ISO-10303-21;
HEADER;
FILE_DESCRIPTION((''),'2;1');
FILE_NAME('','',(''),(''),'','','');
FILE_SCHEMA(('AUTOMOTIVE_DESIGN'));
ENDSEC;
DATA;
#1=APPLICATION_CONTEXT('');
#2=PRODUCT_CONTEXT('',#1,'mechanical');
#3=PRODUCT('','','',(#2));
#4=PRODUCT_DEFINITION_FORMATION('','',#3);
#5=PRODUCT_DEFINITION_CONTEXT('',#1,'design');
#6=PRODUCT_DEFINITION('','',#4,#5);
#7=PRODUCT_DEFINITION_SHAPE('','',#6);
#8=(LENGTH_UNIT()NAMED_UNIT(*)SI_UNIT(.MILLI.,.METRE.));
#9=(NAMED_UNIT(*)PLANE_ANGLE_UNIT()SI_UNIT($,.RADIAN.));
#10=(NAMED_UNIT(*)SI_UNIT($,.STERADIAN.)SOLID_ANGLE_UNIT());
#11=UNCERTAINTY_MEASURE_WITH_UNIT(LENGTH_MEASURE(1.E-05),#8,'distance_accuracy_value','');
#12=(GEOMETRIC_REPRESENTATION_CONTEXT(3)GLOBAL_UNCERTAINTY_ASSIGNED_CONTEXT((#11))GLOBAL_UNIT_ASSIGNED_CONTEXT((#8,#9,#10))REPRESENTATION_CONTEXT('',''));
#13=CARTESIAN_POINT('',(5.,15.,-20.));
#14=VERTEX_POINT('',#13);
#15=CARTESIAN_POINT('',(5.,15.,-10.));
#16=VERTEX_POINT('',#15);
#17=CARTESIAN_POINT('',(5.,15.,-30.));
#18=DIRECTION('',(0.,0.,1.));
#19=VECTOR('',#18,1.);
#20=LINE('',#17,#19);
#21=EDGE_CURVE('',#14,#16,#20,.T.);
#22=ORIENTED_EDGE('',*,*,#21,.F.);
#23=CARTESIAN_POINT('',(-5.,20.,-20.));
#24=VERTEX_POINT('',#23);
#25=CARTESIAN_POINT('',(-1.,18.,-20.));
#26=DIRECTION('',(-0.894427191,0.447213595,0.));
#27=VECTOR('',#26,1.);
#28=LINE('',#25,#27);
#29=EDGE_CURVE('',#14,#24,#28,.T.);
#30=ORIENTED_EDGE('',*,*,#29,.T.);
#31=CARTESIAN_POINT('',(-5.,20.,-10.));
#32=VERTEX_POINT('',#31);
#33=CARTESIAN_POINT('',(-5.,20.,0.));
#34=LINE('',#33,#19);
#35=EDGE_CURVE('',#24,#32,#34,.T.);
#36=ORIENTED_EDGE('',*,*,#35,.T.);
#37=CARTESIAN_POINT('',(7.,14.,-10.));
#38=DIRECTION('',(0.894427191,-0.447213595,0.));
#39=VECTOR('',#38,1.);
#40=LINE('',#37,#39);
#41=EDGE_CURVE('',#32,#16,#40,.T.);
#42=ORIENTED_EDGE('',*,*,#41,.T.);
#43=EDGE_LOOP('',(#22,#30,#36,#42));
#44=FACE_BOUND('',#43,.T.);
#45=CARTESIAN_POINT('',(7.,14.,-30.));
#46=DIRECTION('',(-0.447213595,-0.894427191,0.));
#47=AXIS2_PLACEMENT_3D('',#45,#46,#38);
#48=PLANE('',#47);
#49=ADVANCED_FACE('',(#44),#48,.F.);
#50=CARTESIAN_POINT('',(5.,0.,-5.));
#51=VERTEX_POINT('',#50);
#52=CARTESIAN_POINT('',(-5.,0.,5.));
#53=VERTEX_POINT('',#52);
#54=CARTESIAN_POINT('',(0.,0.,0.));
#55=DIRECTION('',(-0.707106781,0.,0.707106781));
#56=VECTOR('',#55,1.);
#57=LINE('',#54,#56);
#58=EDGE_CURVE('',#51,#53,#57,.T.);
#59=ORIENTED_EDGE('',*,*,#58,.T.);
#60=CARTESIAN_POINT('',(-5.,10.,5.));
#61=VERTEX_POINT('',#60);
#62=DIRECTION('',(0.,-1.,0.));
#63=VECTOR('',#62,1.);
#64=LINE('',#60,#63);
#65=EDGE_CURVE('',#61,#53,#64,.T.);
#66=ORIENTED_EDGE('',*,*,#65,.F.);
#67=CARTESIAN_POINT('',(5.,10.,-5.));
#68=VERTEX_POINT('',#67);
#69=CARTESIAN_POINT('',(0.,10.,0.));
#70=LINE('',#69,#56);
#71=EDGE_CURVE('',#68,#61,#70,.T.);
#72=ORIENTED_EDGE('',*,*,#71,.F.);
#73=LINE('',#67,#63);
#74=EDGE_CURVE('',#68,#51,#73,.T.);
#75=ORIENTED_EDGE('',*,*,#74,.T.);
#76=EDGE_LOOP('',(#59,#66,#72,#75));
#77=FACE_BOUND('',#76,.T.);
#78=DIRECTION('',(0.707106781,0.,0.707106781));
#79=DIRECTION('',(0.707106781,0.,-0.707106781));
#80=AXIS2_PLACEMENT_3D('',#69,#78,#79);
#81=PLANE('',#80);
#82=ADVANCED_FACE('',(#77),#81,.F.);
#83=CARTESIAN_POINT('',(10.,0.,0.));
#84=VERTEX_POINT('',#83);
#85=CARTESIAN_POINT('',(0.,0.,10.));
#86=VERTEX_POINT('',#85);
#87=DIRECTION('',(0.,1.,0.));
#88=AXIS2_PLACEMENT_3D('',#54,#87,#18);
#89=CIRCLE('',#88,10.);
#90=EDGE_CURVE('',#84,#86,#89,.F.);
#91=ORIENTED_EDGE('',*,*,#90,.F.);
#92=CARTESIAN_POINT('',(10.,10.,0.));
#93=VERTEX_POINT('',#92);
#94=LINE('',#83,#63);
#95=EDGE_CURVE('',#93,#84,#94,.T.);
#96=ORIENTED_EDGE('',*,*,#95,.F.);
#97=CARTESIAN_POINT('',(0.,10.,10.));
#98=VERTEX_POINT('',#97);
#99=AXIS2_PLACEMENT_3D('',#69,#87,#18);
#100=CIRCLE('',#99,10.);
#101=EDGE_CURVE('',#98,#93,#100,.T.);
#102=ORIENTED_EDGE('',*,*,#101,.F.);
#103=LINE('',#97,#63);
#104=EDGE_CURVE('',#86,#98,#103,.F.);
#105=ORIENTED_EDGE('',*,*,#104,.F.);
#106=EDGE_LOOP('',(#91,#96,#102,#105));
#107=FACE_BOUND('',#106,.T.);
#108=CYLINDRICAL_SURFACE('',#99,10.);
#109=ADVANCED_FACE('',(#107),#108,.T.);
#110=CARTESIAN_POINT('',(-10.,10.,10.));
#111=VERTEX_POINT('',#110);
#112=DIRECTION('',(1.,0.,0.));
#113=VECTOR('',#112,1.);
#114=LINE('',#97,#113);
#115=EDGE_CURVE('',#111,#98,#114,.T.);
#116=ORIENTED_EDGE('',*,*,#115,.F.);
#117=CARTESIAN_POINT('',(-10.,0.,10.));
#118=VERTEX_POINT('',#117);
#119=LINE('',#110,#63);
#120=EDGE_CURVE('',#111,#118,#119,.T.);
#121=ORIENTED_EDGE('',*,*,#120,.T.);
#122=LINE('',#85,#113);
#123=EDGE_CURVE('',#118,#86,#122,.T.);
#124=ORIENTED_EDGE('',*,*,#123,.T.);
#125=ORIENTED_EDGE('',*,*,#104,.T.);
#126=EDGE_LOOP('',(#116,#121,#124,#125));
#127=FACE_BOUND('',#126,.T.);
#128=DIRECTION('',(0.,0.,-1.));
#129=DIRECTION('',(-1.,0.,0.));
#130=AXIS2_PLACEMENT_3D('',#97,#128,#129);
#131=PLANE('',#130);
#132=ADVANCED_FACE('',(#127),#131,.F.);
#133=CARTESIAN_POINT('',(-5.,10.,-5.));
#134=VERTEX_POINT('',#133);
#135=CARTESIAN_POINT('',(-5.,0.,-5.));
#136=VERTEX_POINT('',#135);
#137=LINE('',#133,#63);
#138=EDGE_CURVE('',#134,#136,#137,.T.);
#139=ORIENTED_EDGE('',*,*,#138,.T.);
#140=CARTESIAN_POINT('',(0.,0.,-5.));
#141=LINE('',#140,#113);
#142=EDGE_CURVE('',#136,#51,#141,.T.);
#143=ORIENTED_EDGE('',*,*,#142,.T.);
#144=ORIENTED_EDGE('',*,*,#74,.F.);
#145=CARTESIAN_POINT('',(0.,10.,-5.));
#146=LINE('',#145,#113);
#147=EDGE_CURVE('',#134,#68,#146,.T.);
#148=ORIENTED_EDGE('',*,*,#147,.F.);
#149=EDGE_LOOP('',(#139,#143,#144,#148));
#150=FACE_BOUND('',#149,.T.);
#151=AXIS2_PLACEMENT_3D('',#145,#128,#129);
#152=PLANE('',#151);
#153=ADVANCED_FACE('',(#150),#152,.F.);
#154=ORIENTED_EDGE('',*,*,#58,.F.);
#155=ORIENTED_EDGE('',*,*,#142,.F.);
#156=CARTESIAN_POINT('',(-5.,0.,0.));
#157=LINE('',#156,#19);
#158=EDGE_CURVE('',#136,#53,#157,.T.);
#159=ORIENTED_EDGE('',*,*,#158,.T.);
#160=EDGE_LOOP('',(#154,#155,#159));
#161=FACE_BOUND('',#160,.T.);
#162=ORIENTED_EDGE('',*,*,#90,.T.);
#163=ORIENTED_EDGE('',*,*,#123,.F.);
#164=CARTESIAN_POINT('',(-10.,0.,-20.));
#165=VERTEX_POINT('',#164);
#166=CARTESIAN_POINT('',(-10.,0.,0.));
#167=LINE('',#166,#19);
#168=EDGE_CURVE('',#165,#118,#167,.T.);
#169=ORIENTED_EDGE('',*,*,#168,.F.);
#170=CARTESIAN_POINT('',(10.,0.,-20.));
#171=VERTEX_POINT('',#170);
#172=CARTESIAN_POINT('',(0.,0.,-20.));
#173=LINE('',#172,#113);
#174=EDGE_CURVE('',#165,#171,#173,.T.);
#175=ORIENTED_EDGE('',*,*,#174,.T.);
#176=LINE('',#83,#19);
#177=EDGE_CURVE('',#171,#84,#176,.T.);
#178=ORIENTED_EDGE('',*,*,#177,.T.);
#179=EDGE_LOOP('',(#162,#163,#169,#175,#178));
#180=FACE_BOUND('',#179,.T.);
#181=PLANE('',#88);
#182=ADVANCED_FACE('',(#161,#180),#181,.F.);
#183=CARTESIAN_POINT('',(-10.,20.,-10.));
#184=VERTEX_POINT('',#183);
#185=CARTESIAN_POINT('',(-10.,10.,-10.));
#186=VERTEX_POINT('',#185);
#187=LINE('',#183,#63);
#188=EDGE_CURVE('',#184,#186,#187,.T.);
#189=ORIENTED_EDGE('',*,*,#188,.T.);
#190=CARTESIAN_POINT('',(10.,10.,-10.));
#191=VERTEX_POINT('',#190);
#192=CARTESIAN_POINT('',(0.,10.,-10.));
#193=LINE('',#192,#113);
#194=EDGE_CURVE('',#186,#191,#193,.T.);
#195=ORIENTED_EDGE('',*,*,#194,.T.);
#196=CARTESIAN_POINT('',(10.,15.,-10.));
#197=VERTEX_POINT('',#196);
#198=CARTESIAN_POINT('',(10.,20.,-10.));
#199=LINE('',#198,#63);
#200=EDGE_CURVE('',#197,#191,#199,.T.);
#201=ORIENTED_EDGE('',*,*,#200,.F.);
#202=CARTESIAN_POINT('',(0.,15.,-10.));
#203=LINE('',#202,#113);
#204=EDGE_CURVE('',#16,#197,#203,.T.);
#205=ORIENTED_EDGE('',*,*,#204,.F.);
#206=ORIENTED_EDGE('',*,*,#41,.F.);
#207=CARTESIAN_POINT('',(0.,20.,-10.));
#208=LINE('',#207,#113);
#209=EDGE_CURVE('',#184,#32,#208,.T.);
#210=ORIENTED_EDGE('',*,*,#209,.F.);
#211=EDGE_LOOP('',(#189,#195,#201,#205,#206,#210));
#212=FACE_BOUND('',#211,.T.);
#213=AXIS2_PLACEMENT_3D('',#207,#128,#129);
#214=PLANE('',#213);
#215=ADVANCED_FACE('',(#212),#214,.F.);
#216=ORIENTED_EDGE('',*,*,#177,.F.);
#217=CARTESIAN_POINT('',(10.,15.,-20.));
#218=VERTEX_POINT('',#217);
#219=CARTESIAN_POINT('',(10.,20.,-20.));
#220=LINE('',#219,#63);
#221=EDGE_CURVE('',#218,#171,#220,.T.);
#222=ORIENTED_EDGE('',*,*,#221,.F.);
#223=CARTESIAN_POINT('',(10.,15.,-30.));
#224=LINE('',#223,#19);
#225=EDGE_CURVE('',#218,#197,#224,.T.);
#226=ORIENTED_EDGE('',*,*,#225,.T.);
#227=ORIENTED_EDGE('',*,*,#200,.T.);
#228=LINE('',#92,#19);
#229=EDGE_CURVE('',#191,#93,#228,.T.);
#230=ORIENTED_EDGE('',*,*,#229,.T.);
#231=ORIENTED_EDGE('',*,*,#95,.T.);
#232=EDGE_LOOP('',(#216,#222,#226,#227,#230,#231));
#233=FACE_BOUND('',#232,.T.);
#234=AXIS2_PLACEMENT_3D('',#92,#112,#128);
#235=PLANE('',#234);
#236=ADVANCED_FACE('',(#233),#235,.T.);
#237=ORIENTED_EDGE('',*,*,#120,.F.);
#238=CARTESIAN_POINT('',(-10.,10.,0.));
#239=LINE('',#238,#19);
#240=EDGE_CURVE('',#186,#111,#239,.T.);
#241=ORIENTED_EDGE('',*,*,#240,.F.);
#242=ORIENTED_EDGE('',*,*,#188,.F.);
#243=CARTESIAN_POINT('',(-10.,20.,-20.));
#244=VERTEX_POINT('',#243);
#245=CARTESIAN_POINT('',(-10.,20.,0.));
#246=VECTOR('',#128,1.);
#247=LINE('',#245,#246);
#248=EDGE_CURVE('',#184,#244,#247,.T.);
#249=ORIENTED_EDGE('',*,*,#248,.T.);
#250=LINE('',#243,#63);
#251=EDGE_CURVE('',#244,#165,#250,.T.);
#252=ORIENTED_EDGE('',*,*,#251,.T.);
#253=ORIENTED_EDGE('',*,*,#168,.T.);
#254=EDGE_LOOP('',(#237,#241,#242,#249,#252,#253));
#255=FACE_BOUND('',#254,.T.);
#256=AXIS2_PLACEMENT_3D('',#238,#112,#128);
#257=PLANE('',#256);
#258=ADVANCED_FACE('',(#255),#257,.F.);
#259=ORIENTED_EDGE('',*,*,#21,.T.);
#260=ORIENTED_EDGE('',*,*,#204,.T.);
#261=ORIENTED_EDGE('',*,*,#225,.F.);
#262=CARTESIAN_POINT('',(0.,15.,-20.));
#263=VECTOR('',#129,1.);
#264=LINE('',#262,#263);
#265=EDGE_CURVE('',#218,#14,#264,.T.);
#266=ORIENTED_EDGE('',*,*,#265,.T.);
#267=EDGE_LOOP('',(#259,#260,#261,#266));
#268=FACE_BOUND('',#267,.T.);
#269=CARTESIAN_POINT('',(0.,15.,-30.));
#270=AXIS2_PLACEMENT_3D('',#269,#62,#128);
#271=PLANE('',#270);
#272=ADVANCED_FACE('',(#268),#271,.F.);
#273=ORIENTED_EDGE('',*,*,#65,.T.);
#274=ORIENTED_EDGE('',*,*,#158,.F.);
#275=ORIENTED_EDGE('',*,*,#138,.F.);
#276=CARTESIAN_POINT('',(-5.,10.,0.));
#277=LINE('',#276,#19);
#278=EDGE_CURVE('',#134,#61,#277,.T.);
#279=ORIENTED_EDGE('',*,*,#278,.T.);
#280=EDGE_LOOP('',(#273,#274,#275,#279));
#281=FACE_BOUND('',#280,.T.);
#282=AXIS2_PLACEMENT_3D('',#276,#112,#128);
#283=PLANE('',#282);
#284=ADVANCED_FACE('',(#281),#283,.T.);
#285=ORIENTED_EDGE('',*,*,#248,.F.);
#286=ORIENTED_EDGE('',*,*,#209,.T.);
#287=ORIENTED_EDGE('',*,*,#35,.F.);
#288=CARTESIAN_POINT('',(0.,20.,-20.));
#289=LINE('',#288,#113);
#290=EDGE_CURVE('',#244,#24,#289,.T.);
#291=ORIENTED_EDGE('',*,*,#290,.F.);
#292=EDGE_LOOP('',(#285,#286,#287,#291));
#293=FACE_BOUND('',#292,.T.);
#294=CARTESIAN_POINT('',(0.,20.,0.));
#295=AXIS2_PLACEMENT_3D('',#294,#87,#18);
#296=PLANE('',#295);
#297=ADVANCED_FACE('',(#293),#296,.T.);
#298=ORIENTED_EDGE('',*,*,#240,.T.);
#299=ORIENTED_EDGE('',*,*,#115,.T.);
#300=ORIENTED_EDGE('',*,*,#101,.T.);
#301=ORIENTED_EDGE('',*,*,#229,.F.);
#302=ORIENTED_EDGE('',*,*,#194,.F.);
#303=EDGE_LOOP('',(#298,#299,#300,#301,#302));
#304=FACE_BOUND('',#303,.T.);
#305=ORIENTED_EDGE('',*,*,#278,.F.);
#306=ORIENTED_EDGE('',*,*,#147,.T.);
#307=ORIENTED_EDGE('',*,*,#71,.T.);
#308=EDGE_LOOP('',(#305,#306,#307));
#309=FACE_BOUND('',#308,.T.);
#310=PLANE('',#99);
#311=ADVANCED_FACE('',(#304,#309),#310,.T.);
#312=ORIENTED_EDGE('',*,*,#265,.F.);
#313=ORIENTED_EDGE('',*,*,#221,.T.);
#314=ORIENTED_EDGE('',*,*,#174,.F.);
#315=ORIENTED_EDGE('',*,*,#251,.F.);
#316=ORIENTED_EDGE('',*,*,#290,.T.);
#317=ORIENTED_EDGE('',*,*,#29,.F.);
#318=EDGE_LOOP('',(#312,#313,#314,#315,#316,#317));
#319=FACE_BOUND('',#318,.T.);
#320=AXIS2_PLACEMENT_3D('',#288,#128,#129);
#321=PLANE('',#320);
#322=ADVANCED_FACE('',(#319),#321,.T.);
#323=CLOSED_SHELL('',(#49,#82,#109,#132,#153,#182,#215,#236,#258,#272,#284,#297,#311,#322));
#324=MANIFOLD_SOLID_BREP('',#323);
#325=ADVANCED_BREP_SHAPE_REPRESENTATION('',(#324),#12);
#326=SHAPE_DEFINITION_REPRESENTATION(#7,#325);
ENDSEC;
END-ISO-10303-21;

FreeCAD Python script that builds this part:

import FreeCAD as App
import Part
import Sketcher

V = App.Vector


def edges_at(feature, points):
    """Names of the edges that pass closest to the given points."""
    edges = feature.Shape.Edges
    near = lambda p: min(range(len(edges)), key=lambda i: edges[i].distToShape(Part.Vertex(*p))[0])
    return sorted({f"Edge{near(p) + 1}" for p in points})


def add_polygon(sketch, points):
    """Adds a closed chain of lines whose ends are joined by coincident constraints."""
    first, n = sketch.GeometryCount, len(points)
    for a, b in zip(points, points[1:] + points[:1]):
        sketch.addGeometry(Part.LineSegment(App.Vector(*a, 0), App.Vector(*b, 0)), False)
    for i in range(n):
        sketch.addConstraint(Sketcher.Constraint("Coincident", first + i, 2, first + (i + 1) % n, 1))

doc = App.newDocument("Part")
body = doc.addObject("PartDesign::Body", "Body")

# Sketch on XZ plane
sketch1 = body.newObject("Sketcher::SketchObject", "Sketch")
sketch1.AttachmentSupport = (doc.getObject("XZ_Plane"), [""])
sketch1.MapMode = "FlatFace"
add_polygon(sketch1, [(-10, -10), (-10, 10), (10, 10), (10, -10)])  # lines 0-3
add_polygon(sketch1, [(-5, 5), (-5, -5), (5, -5)])  # lines 4-6
sketch1.addConstraint([
    Sketcher.Constraint("Vertical", 0),
    Sketcher.Constraint("Horizontal", 1),
    Sketcher.Constraint("Vertical", 2),
    Sketcher.Constraint("Horizontal", 3),
    Sketcher.Constraint("Vertical", 4),
    Sketcher.Constraint("Horizontal", 5),
    Sketcher.Constraint("Symmetric", 0, 2, 2, 2, -1, 1),
    Sketcher.Constraint("Symmetric", 5, 2, 6, 2, -1, 1),
    Sketcher.Constraint("Equal", 3, 0),
    Sketcher.Constraint("Equal", 5, 4),
    Sketcher.Constraint("DistanceX", 1, 1, 1, 2, 20.0),
    Sketcher.Constraint("DistanceX", 5, 1, 5, 2, 10.0),
])
pad1 = body.newObject("PartDesign::Pad", "Pad")
pad1.Profile = sketch1
pad1.Length = 10
pad1.Reversed = True

# Sketch on XZ plane
sketch2 = body.newObject("Sketcher::SketchObject", "Sketch001")
sketch2.AttachmentSupport = (doc.getObject("XZ_Plane"), [""])
sketch2.MapMode = "FlatFace"
add_polygon(sketch2, [(-10, -20), (-10, -10), (10, -10), (10, -20)])  # lines 0-3
sketch2.addConstraint([
    Sketcher.Constraint("Vertical", 0),
    Sketcher.Constraint("Horizontal", 1),
    Sketcher.Constraint("Vertical", 2),
    Sketcher.Constraint("Horizontal", 3),
    Sketcher.Constraint("DistanceX", 1, 1, 1, 2, 20.0),
    Sketcher.Constraint("DistanceY", 0, 1, 0, 2, 10.0),
    Sketcher.Constraint("DistanceX", 0, 2, -1, 1, 10.0),
    Sketcher.Constraint("DistanceY", 0, 2, -1, 1, 10.0),
])
pad2 = body.newObject("PartDesign::Pad", "Pad001")
pad2.Profile = sketch2
pad2.Length = 20
pad2.Reversed = True

# Sketch on XY plane
sketch3 = body.newObject("Sketcher::SketchObject", "Sketch002")
sketch3.AttachmentSupport = (doc.getObject("XY_Plane"), [""])
sketch3.MapMode = "FlatFace"
sketch3.AttachmentOffset = App.Placement(V(0, 0, -10), App.Rotation())
add_polygon(sketch3, [(-5, 20), (5, 15), (10, 15), (10, 20)])  # lines 0-3
sketch3.addConstraint([
    Sketcher.Constraint("Horizontal", 1),
    Sketcher.Constraint("Vertical", 2),
    Sketcher.Constraint("Horizontal", 3),
    Sketcher.Constraint("Equal", 1, 2),
    Sketcher.Constraint("DistanceX", 1, 1, 1, 2, 5.0),
    Sketcher.Constraint("DistanceX", 3, 2, 3, 1, 15.0),
    Sketcher.Constraint("DistanceX", -1, 1, 0, 2, 5.0),
    Sketcher.Constraint("DistanceY", -1, 1, 0, 2, 15.0),
])
pocket1 = body.newObject("PartDesign::Pocket", "Pocket")
pocket1.Profile = sketch3
pocket1.Length = 20
doc.recompute()

fillet = body.newObject("PartDesign::Fillet", "Fillet")
fillet.Base = (pocket1, edges_at(pocket1, [(10, 5, 10)]))
fillet.Radius = 10

doc.recompute()
